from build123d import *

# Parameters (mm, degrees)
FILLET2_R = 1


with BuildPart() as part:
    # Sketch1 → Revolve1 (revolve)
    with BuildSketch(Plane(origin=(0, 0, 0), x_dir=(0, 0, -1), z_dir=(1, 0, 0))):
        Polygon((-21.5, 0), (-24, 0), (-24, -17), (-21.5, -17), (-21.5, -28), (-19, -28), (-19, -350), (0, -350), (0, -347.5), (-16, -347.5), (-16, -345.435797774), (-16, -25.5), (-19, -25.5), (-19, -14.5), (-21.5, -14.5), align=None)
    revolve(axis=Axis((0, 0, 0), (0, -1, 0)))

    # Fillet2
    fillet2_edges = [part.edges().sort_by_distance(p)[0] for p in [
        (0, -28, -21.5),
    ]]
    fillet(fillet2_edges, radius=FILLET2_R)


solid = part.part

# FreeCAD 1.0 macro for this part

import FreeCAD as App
import Part
import Sketcher
from FreeCAD import Vector
Q = App.Units.Quantity


def edges_at(feature, points):
    """Names of the edges that pass closest to the given points."""
    edges = feature.Shape.Edges
    near = lambda p: min(range(len(edges)), key=lambda i: edges[i].distToShape(Part.Vertex(*p))[0])
    return sorted({f"Edge{near(p) + 1}" for p in points})


def add_polygon(sketch, points):
    """Adds a closed chain of lines whose ends are joined by coincident constraints."""
    first, n = sketch.GeometryCount, len(points)
    for a, b in zip(points, points[1:] + points[:1]):
        sketch.addGeometry(Part.LineSegment(App.Vector(*a, 0), App.Vector(*b, 0)), False)
    for i in range(n):
        sketch.addConstraint(Sketcher.Constraint("Coincident", first + i, 2, first + (i + 1) % n, 1))

doc = App.newDocument("Part")
params = doc.addObject("Spreadsheet::Sheet", "Params")
for row, (alias, value) in enumerate([
    ("sketch1_width", "17 mm"),
    ("sketch1_width2", "11 mm"),
    ("sketch1_width3", "322 mm"),
    ("sketch1_height", "19 mm"),
    ("sketch1_height2", "16 mm"),
    ("revolution_angle", "360 deg"),
    ("fillet_radius", "1 mm"),
], start=1):
    params.set(f"A{row}", alias)
    params.set(f"B{row}", "=" + value)
    params.setAlias(f"B{row}", alias)

body = doc.addObject("PartDesign::Body", "Body")

sketch1 = doc.addObject("Sketcher::SketchObject", "Sketch")
body.addObject(sketch1)
sketch1.AttachmentSupport = (doc.YZ_Plane, [""])
sketch1.MapMode = "FlatFace"
add_polygon(sketch1, [(0, 21.5), (0, 24), (-17, 24), (-17, 21.5), (-28, 21.5), (-28, 19), (-350, 19), (-350, 0), (-347.5, 0), (-347.5, 16), (-25.5, 16), (-25.5, 19), (-14.5, 19), (-14.5, 21.5)])
sketch1.addConstraint([
    Sketcher.Constraint("Vertical", 0),
    Sketcher.Constraint("Horizontal", 1),
    Sketcher.Constraint("Vertical", 2),
    Sketcher.Constraint("Horizontal", 3),
    Sketcher.Constraint("Vertical", 4),
    Sketcher.Constraint("Horizontal", 5),
    Sketcher.Constraint("Vertical", 6),
    Sketcher.Constraint("Horizontal", 7),
    Sketcher.Constraint("Vertical", 8),
    Sketcher.Constraint("Horizontal", 9),
    Sketcher.Constraint("Vertical", 10),
    Sketcher.Constraint("Horizontal", 11),
    Sketcher.Constraint("Vertical", 12),
    Sketcher.Constraint("Horizontal", 13),
    Sketcher.Constraint("PointOnObject", 0, 2, -2),
    Sketcher.Constraint("PointOnObject", 6, 2, -1),
    Sketcher.Constraint("Horizontal", 5, 2, 10, 2),
    Sketcher.Constraint("Horizontal", 3, 2, 12, 2),
    Sketcher.Constraint("Equal", 5, 9),
    Sketcher.Constraint("Equal", 3, 11),
    Sketcher.Constraint("Equal", 7, 0),
    Sketcher.Constraint("Equal", 2, 4),
    Sketcher.Constraint("DistanceX", 1, 2, 1, 1, Q("17 mm")),
    Sketcher.Constraint("DistanceX", 3, 2, 3, 1, Q("11 mm")),
    Sketcher.Constraint("DistanceX", 5, 2, 5, 1, Q("322 mm")),
    Sketcher.Constraint("DistanceY", 6, 2, 6, 1, Q("19 mm")),
    Sketcher.Constraint("DistanceY", 8, 1, 8, 2, Q("16 mm")),
    Sketcher.Constraint("DistanceX", 7, 1, 7, 2, Q("2.5 mm")),
])
sketch1.setExpression("Constraints[36]", "Params.sketch1_width")
sketch1.setExpression("Constraints[37]", "Params.sketch1_width2")
sketch1.setExpression("Constraints[38]", "Params.sketch1_width3")
sketch1.setExpression("Constraints[39]", "Params.sketch1_height")
sketch1.setExpression("Constraints[40]", "Params.sketch1_height2")
revolution = doc.addObject("PartDesign::Revolution", "Revolution")
body.addObject(revolution)
revolution.Profile = sketch1
revolution.ReferenceAxis = (sketch1, ["H_Axis"])
revolution.setExpression("Angle", "Params.revolution_angle")
doc.recompute()

fillet = doc.addObject("PartDesign::Fillet", "Fillet")
body.addObject(fillet)
fillet.Base = (revolution, edges_at(revolution, [(0, -28, -21.5)]))
fillet.setExpression("Radius", "Params.fillet_radius")

doc.recompute()
